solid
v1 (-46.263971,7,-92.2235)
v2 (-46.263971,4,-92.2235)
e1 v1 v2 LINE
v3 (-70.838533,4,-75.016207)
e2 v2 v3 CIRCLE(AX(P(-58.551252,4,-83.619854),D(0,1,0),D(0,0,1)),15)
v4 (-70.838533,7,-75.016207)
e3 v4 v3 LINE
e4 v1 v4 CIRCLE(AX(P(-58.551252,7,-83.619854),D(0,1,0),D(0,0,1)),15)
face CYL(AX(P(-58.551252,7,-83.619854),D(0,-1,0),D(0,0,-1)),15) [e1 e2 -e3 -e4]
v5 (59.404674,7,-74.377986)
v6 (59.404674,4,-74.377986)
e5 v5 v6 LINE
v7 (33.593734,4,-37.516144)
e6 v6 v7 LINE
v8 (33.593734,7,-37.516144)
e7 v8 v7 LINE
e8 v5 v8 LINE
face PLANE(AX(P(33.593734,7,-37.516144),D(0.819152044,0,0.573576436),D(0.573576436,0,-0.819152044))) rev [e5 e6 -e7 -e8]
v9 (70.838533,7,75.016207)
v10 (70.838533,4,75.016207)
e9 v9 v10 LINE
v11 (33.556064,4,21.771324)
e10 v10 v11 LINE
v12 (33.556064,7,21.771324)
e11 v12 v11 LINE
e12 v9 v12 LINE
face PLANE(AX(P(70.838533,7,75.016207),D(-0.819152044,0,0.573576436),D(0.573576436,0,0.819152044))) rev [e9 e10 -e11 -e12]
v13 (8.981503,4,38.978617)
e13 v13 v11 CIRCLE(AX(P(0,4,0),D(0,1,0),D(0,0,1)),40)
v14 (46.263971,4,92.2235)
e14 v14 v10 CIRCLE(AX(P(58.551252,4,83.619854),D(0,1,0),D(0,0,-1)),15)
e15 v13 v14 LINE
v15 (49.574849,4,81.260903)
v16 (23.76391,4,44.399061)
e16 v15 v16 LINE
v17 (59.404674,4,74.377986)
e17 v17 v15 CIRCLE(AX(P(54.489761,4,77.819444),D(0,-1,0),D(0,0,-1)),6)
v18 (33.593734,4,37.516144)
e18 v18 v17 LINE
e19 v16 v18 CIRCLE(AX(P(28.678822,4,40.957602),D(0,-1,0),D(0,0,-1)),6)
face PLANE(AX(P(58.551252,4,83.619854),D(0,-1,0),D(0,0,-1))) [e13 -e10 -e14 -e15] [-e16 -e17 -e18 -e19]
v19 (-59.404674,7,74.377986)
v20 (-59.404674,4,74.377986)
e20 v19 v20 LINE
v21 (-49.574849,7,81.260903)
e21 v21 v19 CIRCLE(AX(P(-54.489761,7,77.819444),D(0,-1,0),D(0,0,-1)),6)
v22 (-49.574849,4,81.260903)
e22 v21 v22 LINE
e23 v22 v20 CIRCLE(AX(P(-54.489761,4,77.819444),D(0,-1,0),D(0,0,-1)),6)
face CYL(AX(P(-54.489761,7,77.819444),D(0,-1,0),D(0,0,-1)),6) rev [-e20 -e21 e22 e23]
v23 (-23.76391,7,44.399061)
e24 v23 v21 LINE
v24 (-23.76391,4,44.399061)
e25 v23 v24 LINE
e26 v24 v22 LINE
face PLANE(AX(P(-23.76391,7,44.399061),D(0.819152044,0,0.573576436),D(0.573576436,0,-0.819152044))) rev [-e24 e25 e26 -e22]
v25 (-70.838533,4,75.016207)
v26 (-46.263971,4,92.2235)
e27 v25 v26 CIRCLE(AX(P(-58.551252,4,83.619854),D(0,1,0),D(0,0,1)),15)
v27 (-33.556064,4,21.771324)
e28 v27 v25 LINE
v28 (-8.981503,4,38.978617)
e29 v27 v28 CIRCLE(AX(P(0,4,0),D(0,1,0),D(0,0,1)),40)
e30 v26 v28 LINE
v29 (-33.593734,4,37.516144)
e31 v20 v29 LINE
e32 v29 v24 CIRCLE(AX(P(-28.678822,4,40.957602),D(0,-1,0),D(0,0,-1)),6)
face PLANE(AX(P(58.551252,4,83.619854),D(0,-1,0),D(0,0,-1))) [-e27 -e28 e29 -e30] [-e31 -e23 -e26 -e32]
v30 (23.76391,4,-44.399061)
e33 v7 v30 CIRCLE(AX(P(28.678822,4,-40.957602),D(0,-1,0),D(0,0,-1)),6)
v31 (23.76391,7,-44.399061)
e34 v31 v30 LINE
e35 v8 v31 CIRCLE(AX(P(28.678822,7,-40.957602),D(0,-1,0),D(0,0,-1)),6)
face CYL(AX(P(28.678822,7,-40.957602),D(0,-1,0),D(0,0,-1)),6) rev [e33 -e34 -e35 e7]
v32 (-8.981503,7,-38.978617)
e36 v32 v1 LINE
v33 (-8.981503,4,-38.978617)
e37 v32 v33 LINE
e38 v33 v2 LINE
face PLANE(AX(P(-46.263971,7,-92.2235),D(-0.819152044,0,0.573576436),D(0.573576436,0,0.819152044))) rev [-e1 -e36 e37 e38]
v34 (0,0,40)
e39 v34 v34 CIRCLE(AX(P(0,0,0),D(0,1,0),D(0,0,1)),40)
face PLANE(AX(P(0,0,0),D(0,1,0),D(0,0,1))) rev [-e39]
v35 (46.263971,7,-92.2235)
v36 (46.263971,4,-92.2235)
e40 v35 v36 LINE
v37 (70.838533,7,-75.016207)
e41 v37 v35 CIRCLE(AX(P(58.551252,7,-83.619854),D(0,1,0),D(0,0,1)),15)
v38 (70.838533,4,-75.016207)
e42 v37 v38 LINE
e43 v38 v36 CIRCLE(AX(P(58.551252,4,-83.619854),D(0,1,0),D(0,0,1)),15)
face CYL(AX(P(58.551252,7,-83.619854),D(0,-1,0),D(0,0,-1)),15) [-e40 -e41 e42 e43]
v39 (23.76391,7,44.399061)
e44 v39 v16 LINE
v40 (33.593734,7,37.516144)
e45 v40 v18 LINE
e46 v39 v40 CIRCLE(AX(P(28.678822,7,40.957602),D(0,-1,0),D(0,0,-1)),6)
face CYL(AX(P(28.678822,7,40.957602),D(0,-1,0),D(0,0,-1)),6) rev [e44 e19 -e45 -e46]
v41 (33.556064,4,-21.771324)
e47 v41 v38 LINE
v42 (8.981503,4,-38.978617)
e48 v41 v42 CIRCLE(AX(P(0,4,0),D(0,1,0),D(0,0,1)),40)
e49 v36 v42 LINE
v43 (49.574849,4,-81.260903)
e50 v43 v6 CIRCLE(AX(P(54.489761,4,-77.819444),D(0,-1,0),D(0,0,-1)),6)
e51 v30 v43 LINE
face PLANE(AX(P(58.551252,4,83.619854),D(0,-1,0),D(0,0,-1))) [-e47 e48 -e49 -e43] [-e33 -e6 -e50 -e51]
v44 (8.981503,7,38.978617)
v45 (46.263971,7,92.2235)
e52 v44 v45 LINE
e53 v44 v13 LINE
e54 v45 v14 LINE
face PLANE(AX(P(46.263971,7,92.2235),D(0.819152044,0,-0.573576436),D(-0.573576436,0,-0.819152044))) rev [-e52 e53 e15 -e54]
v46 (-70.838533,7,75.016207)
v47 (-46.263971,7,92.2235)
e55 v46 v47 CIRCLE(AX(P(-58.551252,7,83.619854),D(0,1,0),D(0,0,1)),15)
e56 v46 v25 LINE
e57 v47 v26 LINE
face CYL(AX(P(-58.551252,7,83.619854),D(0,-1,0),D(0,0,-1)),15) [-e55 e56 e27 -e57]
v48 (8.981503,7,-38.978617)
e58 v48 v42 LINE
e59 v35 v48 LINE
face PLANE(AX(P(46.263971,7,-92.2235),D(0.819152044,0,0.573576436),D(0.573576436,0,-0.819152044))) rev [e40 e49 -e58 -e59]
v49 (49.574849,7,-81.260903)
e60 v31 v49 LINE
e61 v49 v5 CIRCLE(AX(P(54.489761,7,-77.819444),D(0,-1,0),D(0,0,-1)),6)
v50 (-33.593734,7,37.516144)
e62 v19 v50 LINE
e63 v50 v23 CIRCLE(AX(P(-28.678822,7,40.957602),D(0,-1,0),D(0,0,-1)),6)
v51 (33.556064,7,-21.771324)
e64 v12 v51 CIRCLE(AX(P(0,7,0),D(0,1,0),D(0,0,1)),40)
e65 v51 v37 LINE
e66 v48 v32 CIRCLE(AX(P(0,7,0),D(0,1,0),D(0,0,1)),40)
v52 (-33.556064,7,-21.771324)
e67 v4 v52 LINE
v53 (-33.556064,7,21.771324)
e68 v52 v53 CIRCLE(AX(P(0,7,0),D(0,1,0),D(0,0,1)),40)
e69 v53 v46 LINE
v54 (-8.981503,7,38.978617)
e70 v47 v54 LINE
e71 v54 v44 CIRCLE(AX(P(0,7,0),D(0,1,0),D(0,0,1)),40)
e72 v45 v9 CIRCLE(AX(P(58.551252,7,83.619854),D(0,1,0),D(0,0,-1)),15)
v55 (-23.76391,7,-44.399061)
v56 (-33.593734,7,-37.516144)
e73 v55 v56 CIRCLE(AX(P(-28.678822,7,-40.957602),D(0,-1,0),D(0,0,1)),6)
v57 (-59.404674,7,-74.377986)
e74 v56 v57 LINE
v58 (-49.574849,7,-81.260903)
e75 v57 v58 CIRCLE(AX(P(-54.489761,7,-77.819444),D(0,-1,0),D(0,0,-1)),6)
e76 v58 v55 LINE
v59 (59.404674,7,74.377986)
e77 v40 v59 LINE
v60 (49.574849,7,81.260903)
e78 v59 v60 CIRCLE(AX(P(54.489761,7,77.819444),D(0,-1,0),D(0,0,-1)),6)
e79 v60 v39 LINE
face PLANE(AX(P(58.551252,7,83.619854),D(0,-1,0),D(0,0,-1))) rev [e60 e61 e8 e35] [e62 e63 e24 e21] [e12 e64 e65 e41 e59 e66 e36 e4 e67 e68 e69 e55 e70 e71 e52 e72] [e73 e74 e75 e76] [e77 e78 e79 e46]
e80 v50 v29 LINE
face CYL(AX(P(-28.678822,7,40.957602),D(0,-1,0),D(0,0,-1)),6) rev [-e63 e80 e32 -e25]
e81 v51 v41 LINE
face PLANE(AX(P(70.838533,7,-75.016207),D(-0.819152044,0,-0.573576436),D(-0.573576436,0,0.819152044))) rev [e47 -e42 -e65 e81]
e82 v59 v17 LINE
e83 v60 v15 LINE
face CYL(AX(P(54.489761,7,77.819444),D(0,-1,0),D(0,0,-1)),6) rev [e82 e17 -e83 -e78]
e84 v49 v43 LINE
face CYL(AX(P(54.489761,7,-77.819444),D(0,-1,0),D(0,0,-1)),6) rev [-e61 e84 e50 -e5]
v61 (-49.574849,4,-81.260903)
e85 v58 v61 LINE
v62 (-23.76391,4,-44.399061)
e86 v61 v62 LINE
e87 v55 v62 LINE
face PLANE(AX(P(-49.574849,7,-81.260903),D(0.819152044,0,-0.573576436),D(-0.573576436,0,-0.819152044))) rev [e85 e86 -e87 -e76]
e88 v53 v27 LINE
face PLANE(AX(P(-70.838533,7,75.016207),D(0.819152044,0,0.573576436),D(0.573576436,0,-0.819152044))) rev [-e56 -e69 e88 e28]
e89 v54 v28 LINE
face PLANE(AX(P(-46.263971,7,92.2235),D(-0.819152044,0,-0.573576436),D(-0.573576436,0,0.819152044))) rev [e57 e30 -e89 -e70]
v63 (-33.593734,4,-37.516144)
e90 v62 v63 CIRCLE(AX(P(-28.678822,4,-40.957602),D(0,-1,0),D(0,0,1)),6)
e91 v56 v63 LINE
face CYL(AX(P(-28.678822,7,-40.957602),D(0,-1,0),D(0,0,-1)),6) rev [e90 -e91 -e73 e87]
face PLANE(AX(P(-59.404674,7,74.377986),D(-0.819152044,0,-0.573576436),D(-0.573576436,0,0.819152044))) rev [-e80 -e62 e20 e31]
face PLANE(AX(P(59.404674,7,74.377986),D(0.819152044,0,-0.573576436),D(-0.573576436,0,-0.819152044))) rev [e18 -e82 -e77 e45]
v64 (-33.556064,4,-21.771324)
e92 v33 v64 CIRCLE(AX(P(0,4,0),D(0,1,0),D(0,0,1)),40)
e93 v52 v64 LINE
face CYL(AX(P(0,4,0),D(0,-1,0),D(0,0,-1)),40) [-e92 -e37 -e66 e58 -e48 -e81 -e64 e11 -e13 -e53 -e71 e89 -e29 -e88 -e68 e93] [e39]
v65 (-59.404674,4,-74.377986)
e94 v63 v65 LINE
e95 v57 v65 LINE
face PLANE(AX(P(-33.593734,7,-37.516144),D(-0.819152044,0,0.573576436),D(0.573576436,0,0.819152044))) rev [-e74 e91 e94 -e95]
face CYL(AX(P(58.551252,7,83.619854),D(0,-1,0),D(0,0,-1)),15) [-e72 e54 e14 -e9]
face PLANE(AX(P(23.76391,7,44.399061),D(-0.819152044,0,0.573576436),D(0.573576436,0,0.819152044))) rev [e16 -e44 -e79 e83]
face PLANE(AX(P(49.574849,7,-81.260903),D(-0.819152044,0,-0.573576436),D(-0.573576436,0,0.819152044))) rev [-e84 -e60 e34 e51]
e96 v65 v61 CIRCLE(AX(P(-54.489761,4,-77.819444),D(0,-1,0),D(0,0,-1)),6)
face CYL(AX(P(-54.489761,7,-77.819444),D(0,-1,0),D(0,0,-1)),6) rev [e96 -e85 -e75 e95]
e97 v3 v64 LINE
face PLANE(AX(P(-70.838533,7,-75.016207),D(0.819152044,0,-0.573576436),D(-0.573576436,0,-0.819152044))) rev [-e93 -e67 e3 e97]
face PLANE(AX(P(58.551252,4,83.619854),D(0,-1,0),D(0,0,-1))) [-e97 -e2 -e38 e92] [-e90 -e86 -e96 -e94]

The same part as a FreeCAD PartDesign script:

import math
import FreeCAD as App
import Part
import Sketcher
Q = App.Units.Quantity

doc = App.newDocument("Part")
body = doc.addObject("PartDesign::Body", "Body")

# Sketch on XZ plane
sketch1 = body.newObject("Sketcher::SketchObject", "Sketch")
sketch1.AttachmentSupport = (doc.getObject("XZ_Plane"), [""])
sketch1.MapMode = "FlatFace"
sketch1.addGeometry(Part.Circle(App.Vector(0, 0, 0), App.Vector(0, 0, 1), 40), False)
sketch1.addConstraint(Sketcher.Constraint("Coincident", 0, 3, -1, 1))
sketch1.addConstraint(Sketcher.Constraint("Diameter", 0, Q("80 mm")))
pad1 = body.newObject("PartDesign::Pad", "Pad")
pad1.Profile = sketch1
pad1.Length = 4
pad1.Reversed = True

# Sketch on XZ plane
sketch2 = body.newObject("Sketcher::SketchObject", "Sketch001")
sketch2.AttachmentSupport = (doc.getObject("XZ_Plane"), [""])
sketch2.MapMode = "FlatFace"
sketch2.AttachmentOffset = App.Placement(App.Vector(0, 0, -4), App.Rotation())
sketch2.addGeometry(Part.LineSegment(App.Vector(34, -22, 0), App.Vector(71, -75, 0)), False)
sketch2.addGeometry(Part.ArcOfCircle(Part.Circle(App.Vector(59, -84, 0), App.Vector(0, 0, 1), 15), math.radians(-145), math.radians(35)), False)
sketch2.addGeometry(Part.LineSegment(App.Vector(46, -92, 0), App.Vector(9, -39, 0)), False)
sketch2.addGeometry(Part.ArcOfCircle(Part.Circle(App.Vector(0, 0, 0), App.Vector(0, 0, 1), 40), math.radians(-103), math.radians(-77)), False)
sketch2.addGeometry(Part.LineSegment(App.Vector(-9, -39, 0), App.Vector(-46, -92, 0)), False)
sketch2.addGeometry(Part.ArcOfCircle(Part.Circle(App.Vector(-59, -84, 0), App.Vector(0, 0, 1), 15), math.radians(145), math.radians(325)), False)
sketch2.addGeometry(Part.LineSegment(App.Vector(-71, -75, 0), App.Vector(-34, -22, 0)), False)
sketch2.addGeometry(Part.ArcOfCircle(Part.Circle(App.Vector(0, 0, 0), App.Vector(0, 0, 1), 40), math.radians(147), math.radians(213)), False)
sketch2.addGeometry(Part.LineSegment(App.Vector(-34, 22, 0), App.Vector(-71, 75, 0)), False)
sketch2.addGeometry(Part.ArcOfCircle(Part.Circle(App.Vector(-59, 84, 0), App.Vector(0, 0, 1), 15), math.radians(35), math.radians(215)), False)
sketch2.addGeometry(Part.LineSegment(App.Vector(-46, 92, 0), App.Vector(-9, 39, 0)), False)
sketch2.addGeometry(Part.ArcOfCircle(Part.Circle(App.Vector(0, 0, 0), App.Vector(0, 0, 1), 40), math.radians(77), math.radians(103)), False)
sketch2.addGeometry(Part.LineSegment(App.Vector(9, 39, 0), App.Vector(46, 92, 0)), False)
sketch2.addGeometry(Part.ArcOfCircle(Part.Circle(App.Vector(59, 84, 0), App.Vector(0, 0, 1), 15), math.radians(-35), math.radians(145)), False)
sketch2.addGeometry(Part.LineSegment(App.Vector(71, 75, 0), App.Vector(34, 22, 0)), False)
sketch2.addGeometry(Part.ArcOfCircle(Part.Circle(App.Vector(0, 0, 0), App.Vector(0, 0, 1), 40), math.radians(-33), math.radians(33)), False)
sketch2.addConstraint(Sketcher.Constraint("Tangent", 0, 2, 1, 2))
sketch2.addConstraint(Sketcher.Constraint("Tangent", 1, 1, 2, 1))
sketch2.addConstraint(Sketcher.Constraint("Coincident", 2, 2, 3, 2))
sketch2.addConstraint(Sketcher.Constraint("Coincident", 3, 1, 4, 1))
sketch2.addConstraint(Sketcher.Constraint("Tangent", 4, 2, 5, 2))
sketch2.addConstraint(Sketcher.Constraint("Tangent", 5, 1, 6, 1))
sketch2.addConstraint(Sketcher.Constraint("Coincident", 6, 2, 7, 2))
sketch2.addConstraint(Sketcher.Constraint("Coincident", 7, 1, 8, 1))
sketch2.addConstraint(Sketcher.Constraint("Tangent", 8, 2, 9, 2))
sketch2.addConstraint(Sketcher.Constraint("Tangent", 9, 1, 10, 1))
sketch2.addConstraint(Sketcher.Constraint("Coincident", 10, 2, 11, 2))
sketch2.addConstraint(Sketcher.Constraint("Coincident", 11, 1, 12, 1))
sketch2.addConstraint(Sketcher.Constraint("Tangent", 12, 2, 13, 2))
sketch2.addConstraint(Sketcher.Constraint("Tangent", 13, 1, 14, 1))
sketch2.addConstraint(Sketcher.Constraint("Coincident", 14, 2, 15, 2))
sketch2.addConstraint(Sketcher.Constraint("Coincident", 15, 1, 0, 1))
sketch2.addConstraint(Sketcher.Constraint("Coincident", 3, 3, -1, 1))
sketch2.addConstraint(Sketcher.Constraint("Coincident", 7, 3, -1, 1))
sketch2.addConstraint(Sketcher.Constraint("Coincident", 11, 3, -1, 1))
sketch2.addConstraint(Sketcher.Constraint("Coincident", 15, 3, -1, 1))
sketch2.addConstraint(Sketcher.Constraint("Equal", 1, 5))
sketch2.addConstraint(Sketcher.Constraint("Equal", 3, 7))
sketch2.addConstraint(Sketcher.Constraint("Equal", 5, 9))
sketch2.addConstraint(Sketcher.Constraint("Equal", 7, 11))
sketch2.addConstraint(Sketcher.Constraint("Equal", 9, 13))
sketch2.addConstraint(Sketcher.Constraint("Equal", 11, 15))
sketch2.addConstraint(Sketcher.Constraint("Symmetric", 1, 3, 9, 3, -1, 1))
sketch2.addConstraint(Sketcher.Constraint("Symmetric", 5, 3, 13, 3, -1, 1))
sketch2.addConstraint(Sketcher.Constraint("Symmetric", 1, 3, 5, 3, -2))
sketch2.addConstraint(Sketcher.Constraint("Parallel", 0, 2))
sketch2.addConstraint(Sketcher.Constraint("Parallel", 4, 6))
sketch2.addConstraint(Sketcher.Constraint("Parallel", 2, 8))
sketch2.addConstraint(Sketcher.Constraint("Parallel", 8, 10))
sketch2.addConstraint(Sketcher.Constraint("Parallel", 6, 12))
sketch2.addConstraint(Sketcher.Constraint("Parallel", 12, 14))
sketch2.addConstraint(Sketcher.Constraint("Horizontal", 2, 2, 3, 1))
sketch2.addConstraint(Sketcher.Constraint("Equal", 0, 2))
sketch2.addConstraint(Sketcher.Constraint("Radius", 1, Q("15 mm")))
sketch2.addConstraint(Sketcher.Constraint("Radius", 3, Q("40 mm")))
sketch2.addConstraint(Sketcher.Constraint("Angle", 0, Q("-55 deg")))
sketch2.addConstraint(Sketcher.Constraint("Distance", 0, Q("65 mm")))
pad2 = body.newObject("PartDesign::Pad", "Pad001")
pad2.Profile = sketch2
pad2.Length = 3
pad2.Reversed = True

# Sketch on XZ plane
sketch3 = body.newObject("Sketcher::SketchObject", "Sketch002")
sketch3.AttachmentSupport = (doc.getObject("XZ_Plane"), [""])
sketch3.MapMode = "FlatFace"
sketch3.AttachmentOffset = App.Placement(App.Vector(0, 0, -4), App.Rotation())
sketch3.addGeometry(Part.LineSegment(App.Vector(59, -74, 0), App.Vector(34, -38, 0)), False)
sketch3.addGeometry(Part.ArcOfCircle(Part.Circle(App.Vector(29, -41, 0), App.Vector(0, 0, 1), 6), math.radians(35), math.radians(215)), False)
sketch3.addGeometry(Part.LineSegment(App.Vector(24, -44, 0), App.Vector(50, -81, 0)), False)
sketch3.addGeometry(Part.ArcOfCircle(Part.Circle(App.Vector(54, -78, 0), App.Vector(0, 0, 1), 6), math.radians(-145), math.radians(35)), False)
sketch3.addGeometry(Part.LineSegment(App.Vector(-34, -38, 0), App.Vector(-59, -74, 0)), False)
sketch3.addGeometry(Part.ArcOfCircle(Part.Circle(App.Vector(-54, -78, 0), App.Vector(0, 0, 1), 6), math.radians(145), math.radians(325)), False)
sketch3.addGeometry(Part.LineSegment(App.Vector(-50, -81, 0), App.Vector(-24, -44, 0)), False)
sketch3.addGeometry(Part.ArcOfCircle(Part.Circle(App.Vector(-29, -41, 0), App.Vector(0, 0, 1), 6), math.radians(-35), math.radians(145)), False)
sketch3.addGeometry(Part.LineSegment(App.Vector(50, 81, 0), App.Vector(24, 44, 0)), False)
sketch3.addGeometry(Part.ArcOfCircle(Part.Circle(App.Vector(29, 41, 0), App.Vector(0, 0, 1), 6), math.radians(145), math.radians(325)), False)
sketch3.addGeometry(Part.LineSegment(App.Vector(34, 38, 0), App.Vector(59, 74, 0)), False)
sketch3.addGeometry(Part.ArcOfCircle(Part.Circle(App.Vector(54, 78, 0), App.Vector(0, 0, 1), 6), math.radians(-35), math.radians(145)), False)
sketch3.addGeometry(Part.LineSegment(App.Vector(-24, 44, 0), App.Vector(-50, 81, 0)), False)
sketch3.addGeometry(Part.ArcOfCircle(Part.Circle(App.Vector(-54, 78, 0), App.Vector(0, 0, 1), 6), math.radians(35), math.radians(215)), False)
sketch3.addGeometry(Part.LineSegment(App.Vector(-59, 74, 0), App.Vector(-34, 38, 0)), False)
sketch3.addGeometry(Part.ArcOfCircle(Part.Circle(App.Vector(-29, 41, 0), App.Vector(0, 0, 1), 6), math.radians(-145), math.radians(35)), False)
sketch3.addConstraint(Sketcher.Constraint("Tangent", 0, 2, 1, 1))
sketch3.addConstraint(Sketcher.Constraint("Tangent", 1, 2, 2, 1))
sketch3.addConstraint(Sketcher.Constraint("Tangent", 2, 2, 3, 1))
sketch3.addConstraint(Sketcher.Constraint("Tangent", 3, 2, 0, 1))
sketch3.addConstraint(Sketcher.Constraint("Tangent", 4, 2, 5, 1))
sketch3.addConstraint(Sketcher.Constraint("Tangent", 5, 2, 6, 1))
sketch3.addConstraint(Sketcher.Constraint("Tangent", 6, 2, 7, 1))
sketch3.addConstraint(Sketcher.Constraint("Tangent", 7, 2, 4, 1))
sketch3.addConstraint(Sketcher.Constraint("Tangent", 8, 2, 9, 1))
sketch3.addConstraint(Sketcher.Constraint("Tangent", 9, 2, 10, 1))
sketch3.addConstraint(Sketcher.Constraint("Tangent", 10, 2, 11, 1))
sketch3.addConstraint(Sketcher.Constraint("Tangent", 11, 2, 8, 1))
sketch3.addConstraint(Sketcher.Constraint("Tangent", 12, 2, 13, 1))
sketch3.addConstraint(Sketcher.Constraint("Tangent", 13, 2, 14, 1))
sketch3.addConstraint(Sketcher.Constraint("Tangent", 14, 2, 15, 1))
sketch3.addConstraint(Sketcher.Constraint("Tangent", 15, 2, 12, 1))
sketch3.addConstraint(Sketcher.Constraint("Equal", 1, 3))
sketch3.addConstraint(Sketcher.Constraint("Equal", 3, 5))
sketch3.addConstraint(Sketcher.Constraint("Equal", 5, 7))
sketch3.addConstraint(Sketcher.Constraint("Equal", 7, 9))
sketch3.addConstraint(Sketcher.Constraint("Equal", 9, 11))
sketch3.addConstraint(Sketcher.Constraint("Equal", 11, 13))
sketch3.addConstraint(Sketcher.Constraint("Equal", 13, 15))
sketch3.addConstraint(Sketcher.Constraint("Symmetric", 7, 3, 9, 3, -1, 1))
sketch3.addConstraint(Sketcher.Constraint("Symmetric", 5, 3, 11, 3, -1, 1))
sketch3.addConstraint(Sketcher.Constraint("Symmetric", 3, 3, 13, 3, -1, 1))
sketch3.addConstraint(Sketcher.Constraint("Symmetric", 1, 3, 15, 3, -1, 1))
sketch3.addConstraint(Sketcher.Constraint("Symmetric", 3, 3, 5, 3, -2))
sketch3.addConstraint(Sketcher.Constraint("Symmetric", 1, 3, 7, 3, -2))
sketch3.addConstraint(Sketcher.Constraint("Radius", 1, Q("6 mm")))
sketch3.addConstraint(Sketcher.Constraint("Angle", 0, Q("125 deg")))
sketch3.addConstraint(Sketcher.Constraint("Distance", 0, Q("45 mm")))
sketch3.addConstraint(Sketcher.Constraint("DistanceX", -1, 1, 1, 3, Q("28.678822 mm")))
sketch3.addConstraint(Sketcher.Constraint("DistanceY", 1, 2, -1, 1, Q("44.399061 mm")))
pocket1 = body.newObject("PartDesign::Pocket", "Pocket")
pocket1.Profile = sketch3
pocket1.Length = 3

doc.recompute()
